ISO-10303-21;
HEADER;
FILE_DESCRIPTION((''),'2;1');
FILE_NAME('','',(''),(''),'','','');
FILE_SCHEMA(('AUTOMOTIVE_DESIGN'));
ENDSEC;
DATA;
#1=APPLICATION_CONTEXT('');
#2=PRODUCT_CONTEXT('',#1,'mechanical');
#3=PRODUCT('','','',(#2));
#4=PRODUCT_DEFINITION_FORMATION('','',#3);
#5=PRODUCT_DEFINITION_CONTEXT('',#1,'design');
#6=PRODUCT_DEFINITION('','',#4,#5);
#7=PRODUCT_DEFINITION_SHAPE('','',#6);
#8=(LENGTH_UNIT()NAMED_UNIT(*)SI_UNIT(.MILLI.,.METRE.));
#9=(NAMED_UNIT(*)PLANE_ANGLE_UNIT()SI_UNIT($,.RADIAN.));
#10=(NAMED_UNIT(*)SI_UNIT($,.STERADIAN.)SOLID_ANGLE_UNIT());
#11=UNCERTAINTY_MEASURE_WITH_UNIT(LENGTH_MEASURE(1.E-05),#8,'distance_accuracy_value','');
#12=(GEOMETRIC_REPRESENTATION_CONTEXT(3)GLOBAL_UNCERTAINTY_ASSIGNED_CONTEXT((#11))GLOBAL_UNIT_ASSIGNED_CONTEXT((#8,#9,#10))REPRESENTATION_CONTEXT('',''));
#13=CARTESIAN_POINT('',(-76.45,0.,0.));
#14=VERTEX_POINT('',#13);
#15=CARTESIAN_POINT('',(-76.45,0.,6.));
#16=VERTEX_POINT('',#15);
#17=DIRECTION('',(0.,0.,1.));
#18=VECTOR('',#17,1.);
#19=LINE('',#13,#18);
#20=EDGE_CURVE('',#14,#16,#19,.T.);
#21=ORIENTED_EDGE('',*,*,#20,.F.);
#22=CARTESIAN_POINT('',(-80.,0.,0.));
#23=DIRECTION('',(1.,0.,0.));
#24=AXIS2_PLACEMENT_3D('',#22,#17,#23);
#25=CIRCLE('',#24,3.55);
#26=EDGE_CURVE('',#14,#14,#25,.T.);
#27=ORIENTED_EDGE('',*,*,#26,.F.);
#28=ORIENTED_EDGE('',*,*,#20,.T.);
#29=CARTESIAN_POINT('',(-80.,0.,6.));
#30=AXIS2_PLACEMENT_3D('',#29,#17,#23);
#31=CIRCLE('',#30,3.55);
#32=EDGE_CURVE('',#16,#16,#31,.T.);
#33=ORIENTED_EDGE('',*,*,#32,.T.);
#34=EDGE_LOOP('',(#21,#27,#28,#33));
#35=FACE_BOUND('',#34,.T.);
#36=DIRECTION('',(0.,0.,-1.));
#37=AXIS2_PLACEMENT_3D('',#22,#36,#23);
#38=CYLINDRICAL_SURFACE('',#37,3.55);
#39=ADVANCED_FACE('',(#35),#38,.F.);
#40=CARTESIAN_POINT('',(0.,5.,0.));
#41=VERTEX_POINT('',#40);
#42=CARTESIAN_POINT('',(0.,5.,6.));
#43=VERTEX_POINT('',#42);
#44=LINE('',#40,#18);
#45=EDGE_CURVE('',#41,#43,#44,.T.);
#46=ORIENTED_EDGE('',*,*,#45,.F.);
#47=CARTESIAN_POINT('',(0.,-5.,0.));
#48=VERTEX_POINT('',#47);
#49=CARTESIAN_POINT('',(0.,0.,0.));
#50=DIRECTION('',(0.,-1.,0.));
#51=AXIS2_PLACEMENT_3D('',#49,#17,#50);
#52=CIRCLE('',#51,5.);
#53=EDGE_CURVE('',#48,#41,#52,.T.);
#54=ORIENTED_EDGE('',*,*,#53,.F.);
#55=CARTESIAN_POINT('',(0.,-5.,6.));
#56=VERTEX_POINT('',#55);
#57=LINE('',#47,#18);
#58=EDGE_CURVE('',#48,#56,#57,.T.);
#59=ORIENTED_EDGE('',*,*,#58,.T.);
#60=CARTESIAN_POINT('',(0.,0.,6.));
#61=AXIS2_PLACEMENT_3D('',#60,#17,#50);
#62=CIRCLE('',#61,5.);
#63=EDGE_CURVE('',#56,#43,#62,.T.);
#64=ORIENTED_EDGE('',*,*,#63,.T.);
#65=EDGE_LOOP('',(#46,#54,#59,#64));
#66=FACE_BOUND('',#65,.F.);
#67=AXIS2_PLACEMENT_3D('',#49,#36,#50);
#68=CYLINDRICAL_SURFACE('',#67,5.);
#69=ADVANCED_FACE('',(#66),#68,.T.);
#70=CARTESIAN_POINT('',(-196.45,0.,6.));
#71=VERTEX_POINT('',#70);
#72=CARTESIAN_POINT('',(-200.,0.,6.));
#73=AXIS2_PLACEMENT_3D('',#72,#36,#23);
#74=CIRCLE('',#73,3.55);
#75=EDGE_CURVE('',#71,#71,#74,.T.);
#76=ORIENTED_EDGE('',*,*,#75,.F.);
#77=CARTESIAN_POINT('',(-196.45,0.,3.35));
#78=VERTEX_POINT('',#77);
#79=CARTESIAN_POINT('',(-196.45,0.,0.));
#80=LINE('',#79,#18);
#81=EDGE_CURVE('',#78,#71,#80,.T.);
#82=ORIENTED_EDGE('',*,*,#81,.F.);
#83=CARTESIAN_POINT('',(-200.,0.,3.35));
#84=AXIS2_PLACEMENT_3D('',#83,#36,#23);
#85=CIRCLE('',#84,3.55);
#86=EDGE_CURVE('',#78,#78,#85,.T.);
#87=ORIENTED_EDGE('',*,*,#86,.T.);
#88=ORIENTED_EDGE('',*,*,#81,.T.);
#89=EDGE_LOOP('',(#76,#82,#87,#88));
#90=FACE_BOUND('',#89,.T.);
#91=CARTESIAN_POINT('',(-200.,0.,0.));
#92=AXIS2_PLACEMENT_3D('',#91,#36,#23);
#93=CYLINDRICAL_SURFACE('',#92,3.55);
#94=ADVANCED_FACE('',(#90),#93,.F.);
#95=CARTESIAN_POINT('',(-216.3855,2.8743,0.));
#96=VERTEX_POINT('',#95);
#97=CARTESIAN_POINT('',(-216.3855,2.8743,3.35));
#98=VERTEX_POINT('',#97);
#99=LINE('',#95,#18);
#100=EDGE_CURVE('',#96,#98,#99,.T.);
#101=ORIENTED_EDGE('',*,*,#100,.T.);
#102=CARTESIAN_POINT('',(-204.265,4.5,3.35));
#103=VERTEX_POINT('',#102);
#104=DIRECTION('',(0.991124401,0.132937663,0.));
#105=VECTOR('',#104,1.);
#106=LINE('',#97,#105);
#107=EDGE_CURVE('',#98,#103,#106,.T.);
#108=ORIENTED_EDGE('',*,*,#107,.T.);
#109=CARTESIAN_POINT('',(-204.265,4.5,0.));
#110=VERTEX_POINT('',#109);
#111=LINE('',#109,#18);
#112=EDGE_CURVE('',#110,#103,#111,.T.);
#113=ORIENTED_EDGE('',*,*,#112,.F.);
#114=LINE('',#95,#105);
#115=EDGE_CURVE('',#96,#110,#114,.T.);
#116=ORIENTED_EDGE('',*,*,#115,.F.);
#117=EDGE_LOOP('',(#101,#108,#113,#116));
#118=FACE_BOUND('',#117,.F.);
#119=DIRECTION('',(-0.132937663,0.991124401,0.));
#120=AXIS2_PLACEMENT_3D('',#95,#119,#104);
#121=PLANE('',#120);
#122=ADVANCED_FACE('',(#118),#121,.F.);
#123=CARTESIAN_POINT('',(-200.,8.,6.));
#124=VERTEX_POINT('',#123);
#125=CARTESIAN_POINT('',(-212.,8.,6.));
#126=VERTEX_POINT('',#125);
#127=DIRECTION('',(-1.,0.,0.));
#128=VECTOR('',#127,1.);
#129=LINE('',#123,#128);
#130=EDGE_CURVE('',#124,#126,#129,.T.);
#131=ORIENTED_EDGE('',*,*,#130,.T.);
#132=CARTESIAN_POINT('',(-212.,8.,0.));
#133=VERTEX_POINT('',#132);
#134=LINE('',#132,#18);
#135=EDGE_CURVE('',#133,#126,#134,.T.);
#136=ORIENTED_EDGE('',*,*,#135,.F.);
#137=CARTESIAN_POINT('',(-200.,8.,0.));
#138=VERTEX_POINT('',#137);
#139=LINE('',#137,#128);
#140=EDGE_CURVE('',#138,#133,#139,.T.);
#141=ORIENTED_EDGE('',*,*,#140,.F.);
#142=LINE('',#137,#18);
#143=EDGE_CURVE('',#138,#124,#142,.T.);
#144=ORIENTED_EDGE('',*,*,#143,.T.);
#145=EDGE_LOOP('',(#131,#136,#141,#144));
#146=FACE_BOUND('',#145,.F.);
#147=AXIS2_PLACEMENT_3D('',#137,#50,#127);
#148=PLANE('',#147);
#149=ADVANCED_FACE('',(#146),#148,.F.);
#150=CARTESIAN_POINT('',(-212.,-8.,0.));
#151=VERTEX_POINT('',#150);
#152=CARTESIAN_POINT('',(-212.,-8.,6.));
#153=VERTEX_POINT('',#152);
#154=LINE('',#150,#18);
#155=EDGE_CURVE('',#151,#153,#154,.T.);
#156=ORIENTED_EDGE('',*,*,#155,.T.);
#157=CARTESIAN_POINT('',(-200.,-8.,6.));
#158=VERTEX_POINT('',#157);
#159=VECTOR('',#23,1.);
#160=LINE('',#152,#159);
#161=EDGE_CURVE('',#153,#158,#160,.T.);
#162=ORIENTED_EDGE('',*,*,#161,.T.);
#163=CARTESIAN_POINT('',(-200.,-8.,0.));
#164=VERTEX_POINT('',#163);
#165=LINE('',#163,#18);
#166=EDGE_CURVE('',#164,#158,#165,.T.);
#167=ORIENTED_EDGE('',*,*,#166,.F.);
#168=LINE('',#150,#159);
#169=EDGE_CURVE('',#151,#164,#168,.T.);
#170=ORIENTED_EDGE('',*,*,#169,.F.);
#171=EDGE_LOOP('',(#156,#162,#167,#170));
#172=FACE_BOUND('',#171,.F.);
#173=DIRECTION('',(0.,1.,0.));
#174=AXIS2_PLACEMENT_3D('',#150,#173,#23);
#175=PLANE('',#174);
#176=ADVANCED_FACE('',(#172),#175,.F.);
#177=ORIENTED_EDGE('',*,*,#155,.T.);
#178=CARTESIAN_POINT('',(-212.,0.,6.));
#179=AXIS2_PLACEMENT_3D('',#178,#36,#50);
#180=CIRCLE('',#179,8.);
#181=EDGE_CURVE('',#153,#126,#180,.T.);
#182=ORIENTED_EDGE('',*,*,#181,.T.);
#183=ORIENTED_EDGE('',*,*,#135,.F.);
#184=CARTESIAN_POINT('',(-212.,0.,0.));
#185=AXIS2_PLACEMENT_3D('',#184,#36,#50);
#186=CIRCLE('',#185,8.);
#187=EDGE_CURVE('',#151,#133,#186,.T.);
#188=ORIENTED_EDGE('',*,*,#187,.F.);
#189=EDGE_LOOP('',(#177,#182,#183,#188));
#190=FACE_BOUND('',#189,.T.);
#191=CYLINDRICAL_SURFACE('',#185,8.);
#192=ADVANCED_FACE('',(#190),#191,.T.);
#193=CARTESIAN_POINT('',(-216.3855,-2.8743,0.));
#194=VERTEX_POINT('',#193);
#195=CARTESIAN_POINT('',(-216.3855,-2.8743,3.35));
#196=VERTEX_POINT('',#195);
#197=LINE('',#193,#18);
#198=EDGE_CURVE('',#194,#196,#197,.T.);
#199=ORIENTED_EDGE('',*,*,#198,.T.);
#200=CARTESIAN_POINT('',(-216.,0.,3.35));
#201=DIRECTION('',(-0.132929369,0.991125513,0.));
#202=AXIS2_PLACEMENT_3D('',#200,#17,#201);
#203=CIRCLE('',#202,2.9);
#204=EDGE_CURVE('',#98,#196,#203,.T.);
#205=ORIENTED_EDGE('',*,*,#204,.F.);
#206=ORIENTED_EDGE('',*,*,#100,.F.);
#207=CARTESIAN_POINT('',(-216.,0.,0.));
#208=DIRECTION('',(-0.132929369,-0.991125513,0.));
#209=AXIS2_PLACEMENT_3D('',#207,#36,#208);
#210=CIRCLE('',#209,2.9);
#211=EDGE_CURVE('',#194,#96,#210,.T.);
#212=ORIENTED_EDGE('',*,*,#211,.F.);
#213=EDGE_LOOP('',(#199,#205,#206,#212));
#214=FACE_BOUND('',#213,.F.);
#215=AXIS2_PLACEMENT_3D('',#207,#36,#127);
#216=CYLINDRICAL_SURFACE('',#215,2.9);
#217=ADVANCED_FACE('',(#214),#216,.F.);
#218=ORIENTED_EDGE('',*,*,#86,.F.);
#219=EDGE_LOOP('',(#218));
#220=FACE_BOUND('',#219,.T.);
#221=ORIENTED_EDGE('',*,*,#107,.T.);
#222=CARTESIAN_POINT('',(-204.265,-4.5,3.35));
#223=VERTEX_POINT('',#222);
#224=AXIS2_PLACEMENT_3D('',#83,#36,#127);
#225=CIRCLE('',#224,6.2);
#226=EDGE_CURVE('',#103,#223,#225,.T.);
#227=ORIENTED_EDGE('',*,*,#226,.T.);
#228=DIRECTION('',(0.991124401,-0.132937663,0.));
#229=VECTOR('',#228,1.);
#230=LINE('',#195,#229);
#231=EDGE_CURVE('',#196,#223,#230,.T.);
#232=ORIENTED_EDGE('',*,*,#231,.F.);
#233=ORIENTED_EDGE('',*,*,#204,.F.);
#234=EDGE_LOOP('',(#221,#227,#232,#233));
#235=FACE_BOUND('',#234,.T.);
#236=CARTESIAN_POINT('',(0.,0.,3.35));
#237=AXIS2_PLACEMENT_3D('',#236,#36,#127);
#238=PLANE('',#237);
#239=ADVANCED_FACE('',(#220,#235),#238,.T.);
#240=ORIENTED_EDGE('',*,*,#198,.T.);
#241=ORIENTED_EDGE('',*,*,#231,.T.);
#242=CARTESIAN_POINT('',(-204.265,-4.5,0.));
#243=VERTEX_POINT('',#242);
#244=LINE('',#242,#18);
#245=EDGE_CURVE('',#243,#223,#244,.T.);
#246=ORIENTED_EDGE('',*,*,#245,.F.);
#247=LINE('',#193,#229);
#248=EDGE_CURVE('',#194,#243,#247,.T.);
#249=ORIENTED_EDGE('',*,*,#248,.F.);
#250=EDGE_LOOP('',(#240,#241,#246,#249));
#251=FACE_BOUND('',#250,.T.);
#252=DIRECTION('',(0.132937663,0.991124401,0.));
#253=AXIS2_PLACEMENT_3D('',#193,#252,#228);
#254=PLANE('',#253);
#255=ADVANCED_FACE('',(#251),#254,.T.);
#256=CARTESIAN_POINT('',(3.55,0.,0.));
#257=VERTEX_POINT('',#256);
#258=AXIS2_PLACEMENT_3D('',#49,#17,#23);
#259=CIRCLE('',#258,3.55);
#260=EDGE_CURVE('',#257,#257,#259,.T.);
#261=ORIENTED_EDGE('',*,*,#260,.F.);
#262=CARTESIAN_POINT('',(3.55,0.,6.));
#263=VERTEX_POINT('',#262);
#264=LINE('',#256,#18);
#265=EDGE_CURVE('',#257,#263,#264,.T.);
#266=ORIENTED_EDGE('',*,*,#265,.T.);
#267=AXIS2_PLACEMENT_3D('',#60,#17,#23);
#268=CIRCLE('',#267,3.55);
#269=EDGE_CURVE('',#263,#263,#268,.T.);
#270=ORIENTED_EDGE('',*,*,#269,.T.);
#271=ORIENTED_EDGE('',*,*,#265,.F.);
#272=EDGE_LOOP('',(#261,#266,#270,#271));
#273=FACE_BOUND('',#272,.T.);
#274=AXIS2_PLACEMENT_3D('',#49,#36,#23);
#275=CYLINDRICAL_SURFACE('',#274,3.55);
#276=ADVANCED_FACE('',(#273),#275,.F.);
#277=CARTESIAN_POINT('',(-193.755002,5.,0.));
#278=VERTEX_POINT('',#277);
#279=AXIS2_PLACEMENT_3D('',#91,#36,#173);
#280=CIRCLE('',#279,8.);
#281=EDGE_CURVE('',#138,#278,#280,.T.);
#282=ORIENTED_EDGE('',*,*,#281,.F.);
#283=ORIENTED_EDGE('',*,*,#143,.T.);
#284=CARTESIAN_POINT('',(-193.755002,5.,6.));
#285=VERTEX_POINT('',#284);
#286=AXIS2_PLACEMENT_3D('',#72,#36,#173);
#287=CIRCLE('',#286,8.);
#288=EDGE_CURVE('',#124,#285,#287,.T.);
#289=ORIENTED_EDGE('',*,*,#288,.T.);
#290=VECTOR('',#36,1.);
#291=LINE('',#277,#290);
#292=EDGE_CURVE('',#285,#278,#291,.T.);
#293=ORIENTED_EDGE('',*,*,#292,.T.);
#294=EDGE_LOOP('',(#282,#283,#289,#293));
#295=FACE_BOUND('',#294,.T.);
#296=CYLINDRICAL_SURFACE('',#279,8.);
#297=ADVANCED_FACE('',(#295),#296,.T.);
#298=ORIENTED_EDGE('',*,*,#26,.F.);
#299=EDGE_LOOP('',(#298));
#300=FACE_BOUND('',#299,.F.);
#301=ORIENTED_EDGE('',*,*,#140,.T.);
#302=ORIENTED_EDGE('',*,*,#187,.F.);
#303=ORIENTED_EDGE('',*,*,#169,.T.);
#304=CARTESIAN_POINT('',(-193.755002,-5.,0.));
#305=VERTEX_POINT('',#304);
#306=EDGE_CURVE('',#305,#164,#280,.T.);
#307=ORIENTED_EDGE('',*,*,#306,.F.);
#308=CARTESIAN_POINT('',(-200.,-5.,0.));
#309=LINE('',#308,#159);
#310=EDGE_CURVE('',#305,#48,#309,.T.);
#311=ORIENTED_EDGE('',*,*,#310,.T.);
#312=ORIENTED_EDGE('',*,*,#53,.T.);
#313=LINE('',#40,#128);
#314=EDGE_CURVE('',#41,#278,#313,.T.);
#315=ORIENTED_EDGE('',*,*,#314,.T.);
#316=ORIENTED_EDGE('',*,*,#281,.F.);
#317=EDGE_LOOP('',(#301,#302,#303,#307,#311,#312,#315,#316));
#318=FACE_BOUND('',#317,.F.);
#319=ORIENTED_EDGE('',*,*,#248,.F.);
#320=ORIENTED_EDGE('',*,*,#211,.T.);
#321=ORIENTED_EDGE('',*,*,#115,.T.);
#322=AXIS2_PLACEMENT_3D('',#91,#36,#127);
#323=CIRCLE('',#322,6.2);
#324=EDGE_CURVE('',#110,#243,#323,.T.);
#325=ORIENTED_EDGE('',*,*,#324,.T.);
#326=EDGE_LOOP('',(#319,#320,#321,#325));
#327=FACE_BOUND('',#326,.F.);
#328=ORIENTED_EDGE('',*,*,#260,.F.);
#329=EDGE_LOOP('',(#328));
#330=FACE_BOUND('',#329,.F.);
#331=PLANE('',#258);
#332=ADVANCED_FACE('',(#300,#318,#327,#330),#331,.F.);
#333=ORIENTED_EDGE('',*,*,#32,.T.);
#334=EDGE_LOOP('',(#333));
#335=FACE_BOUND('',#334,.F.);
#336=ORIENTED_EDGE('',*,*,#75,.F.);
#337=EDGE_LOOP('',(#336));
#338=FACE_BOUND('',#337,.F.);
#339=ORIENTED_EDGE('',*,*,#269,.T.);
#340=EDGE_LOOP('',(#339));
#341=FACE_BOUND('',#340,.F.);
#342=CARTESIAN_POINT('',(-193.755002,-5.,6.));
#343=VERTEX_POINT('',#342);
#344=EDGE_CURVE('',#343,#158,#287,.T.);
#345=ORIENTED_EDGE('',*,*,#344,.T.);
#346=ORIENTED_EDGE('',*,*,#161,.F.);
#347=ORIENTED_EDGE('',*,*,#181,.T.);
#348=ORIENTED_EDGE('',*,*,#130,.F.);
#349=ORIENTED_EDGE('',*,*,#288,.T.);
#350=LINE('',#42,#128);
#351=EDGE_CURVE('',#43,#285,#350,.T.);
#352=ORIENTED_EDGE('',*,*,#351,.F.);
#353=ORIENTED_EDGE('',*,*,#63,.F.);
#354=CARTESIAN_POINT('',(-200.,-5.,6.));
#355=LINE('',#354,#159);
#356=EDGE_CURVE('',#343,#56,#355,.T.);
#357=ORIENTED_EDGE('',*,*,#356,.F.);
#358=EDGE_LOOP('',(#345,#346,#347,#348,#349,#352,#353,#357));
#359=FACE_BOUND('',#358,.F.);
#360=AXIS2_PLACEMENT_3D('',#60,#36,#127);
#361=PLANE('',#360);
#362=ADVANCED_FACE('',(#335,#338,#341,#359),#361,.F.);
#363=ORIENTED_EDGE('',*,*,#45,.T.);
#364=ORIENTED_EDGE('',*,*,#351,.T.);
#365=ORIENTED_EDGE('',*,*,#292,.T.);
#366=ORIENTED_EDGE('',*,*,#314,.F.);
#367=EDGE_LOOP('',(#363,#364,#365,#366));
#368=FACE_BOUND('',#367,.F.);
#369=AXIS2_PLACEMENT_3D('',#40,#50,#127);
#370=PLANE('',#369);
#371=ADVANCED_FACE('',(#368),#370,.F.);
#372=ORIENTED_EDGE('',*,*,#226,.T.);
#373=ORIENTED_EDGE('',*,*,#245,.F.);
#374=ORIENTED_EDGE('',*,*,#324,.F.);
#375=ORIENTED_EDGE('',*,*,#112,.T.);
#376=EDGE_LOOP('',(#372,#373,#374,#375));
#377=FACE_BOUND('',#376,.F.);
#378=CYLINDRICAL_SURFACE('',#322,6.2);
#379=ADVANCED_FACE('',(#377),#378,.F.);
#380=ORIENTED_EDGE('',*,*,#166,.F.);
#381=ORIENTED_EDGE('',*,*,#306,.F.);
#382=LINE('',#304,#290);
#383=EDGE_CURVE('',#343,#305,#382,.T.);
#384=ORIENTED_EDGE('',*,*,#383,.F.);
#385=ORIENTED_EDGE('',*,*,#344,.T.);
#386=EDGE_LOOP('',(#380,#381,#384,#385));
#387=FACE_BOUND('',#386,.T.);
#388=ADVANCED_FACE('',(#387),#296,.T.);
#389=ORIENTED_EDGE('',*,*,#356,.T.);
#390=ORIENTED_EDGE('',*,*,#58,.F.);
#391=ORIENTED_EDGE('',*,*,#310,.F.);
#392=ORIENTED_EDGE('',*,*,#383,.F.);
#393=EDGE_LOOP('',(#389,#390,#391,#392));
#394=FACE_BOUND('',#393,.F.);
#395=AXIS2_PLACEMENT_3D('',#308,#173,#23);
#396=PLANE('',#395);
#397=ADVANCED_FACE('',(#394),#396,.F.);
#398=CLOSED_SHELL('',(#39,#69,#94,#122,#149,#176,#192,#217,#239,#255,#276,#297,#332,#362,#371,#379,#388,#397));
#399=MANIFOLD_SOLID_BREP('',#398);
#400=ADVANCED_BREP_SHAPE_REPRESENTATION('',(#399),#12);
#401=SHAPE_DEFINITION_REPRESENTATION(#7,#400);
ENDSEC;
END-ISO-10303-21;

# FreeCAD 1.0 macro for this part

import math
import FreeCAD as App
import Part
import Sketcher

V = App.Vector

doc = App.newDocument("Part")
body = doc.addObject("PartDesign::Body", "Body")

sketch1 = doc.addObject("Sketcher::SketchObject", "Sketch")
body.addObject(sketch1)
sketch1.AttachmentSupport = (doc.XY_Plane, [""])
sketch1.MapMode = "FlatFace"
sketch1.addGeometry([
    Part.ArcOfCircle(Part.Circle(V(-200, 0, 0), V(0, 0, 1), 5), math.radians(90), math.radians(270)),
    Part.LineSegment(V(-200, -5, 0), V(0, -5, 0)),
    Part.ArcOfCircle(Part.Circle(V(0, 0, 0), V(0, 0, 1), 5), math.radians(-90), math.radians(90)),
    Part.LineSegment(V(0, 5, 0), V(-200, 5, 0)),
    Part.Circle(V(-80, 0, 0), V(0, 0, 1), 3.5),
    Part.Circle(V(0, 0, 0), V(0, 0, 1), 3.5),
], False)
sketch1.addConstraint([
    Sketcher.Constraint("Tangent", 0, 2, 1, 1),
    Sketcher.Constraint("Tangent", 1, 2, 2, 1),
    Sketcher.Constraint("Tangent", 2, 2, 3, 1),
    Sketcher.Constraint("Tangent", 3, 2, 0, 1),
    Sketcher.Constraint("Horizontal", 1),
    Sketcher.Constraint("Horizontal", 3),
    Sketcher.Constraint("Coincident", 2, 3, -1, 1),
    Sketcher.Constraint("Coincident", 5, 3, -1, 1),
    Sketcher.Constraint("Equal", 4, 5),
    Sketcher.Constraint("PointOnObject", 4, 3, -1),
    Sketcher.Constraint("Radius", 0, 5.0),
    Sketcher.Constraint("Diameter", 4, 7.1),
    Sketcher.Constraint("DistanceX", 1, 1, 1, 2, 200.0),
    Sketcher.Constraint("DistanceX", 4, 3, -1, 1, 80.0),
])
pad1 = doc.addObject("PartDesign::Pad", "Pad")
body.addObject(pad1)
pad1.Profile = sketch1
pad1.Length = 6

sketch2 = doc.addObject("Sketcher::SketchObject", "Sketch001")
body.addObject(sketch2)
sketch2.AttachmentSupport = (doc.XY_Plane, [""])
sketch2.MapMode = "FlatFace"
sketch2.addGeometry([
    Part.LineSegment(V(-212, 8, 0), V(-200, 8, 0)),
    Part.ArcOfCircle(Part.Circle(V(-200, 0, 0), V(0, 0, 1), 8), math.radians(-90), math.radians(90)),
    Part.LineSegment(V(-200, -8, 0), V(-212, -8, 0)),
    Part.ArcOfCircle(Part.Circle(V(-212, 0, 0), V(0, 0, 1), 8), math.radians(90), math.radians(270)),
], False)
sketch2.addConstraint([
    Sketcher.Constraint("Tangent", 0, 2, 1, 2),
    Sketcher.Constraint("Tangent", 1, 1, 2, 1),
    Sketcher.Constraint("Tangent", 2, 2, 3, 2),
    Sketcher.Constraint("Tangent", 3, 1, 0, 1),
    Sketcher.Constraint("Horizontal", 0),
    Sketcher.Constraint("Horizontal", 2),
    Sketcher.Constraint("PointOnObject", 1, 3, -1),
    Sketcher.Constraint("Radius", 1, 8.0),
    Sketcher.Constraint("DistanceX", 0, 1, 0, 2, 12.0),
    Sketcher.Constraint("DistanceX", 1, 3, -1, 1, 200.0),
])
pad2 = doc.addObject("PartDesign::Pad", "Pad001")
body.addObject(pad2)
pad2.Profile = sketch2
pad2.Length = 6

sketch3 = doc.addObject("Sketcher::SketchObject", "Sketch002")
body.addObject(sketch3)
sketch3.AttachmentSupport = (doc.XY_Plane, [""])
sketch3.MapMode = "FlatFace"
sketch3.addGeometry([
    Part.ArcOfCircle(Part.Circle(V(-200, 0, 0), V(0, 0, 1), 6.2), math.radians(-133), math.radians(133)),
    Part.LineSegment(V(-204.3, -4.5, 0), V(-216.4, -2.9, 0)),
    Part.ArcOfCircle(Part.Circle(V(-216, 0, 0), V(0, 0, 1), 2.9), math.radians(98), math.radians(262)),
    Part.LineSegment(V(-216.4, 2.9, 0), V(-204.3, 4.5, 0)),
], False)
sketch3.addConstraint([
    Sketcher.Constraint("Coincident", 0, 1, 1, 1),
    Sketcher.Constraint("Tangent", 1, 2, 2, 2),
    Sketcher.Constraint("Tangent", 2, 1, 3, 1),
    Sketcher.Constraint("Coincident", 3, 2, 0, 2),
    Sketcher.Constraint("Symmetric", 1, 2, 2, 1, -1),
    Sketcher.Constraint("PointOnObject", 0, 3, -1),
    Sketcher.Constraint("Radius", 0, 6.2),
    Sketcher.Constraint("Radius", 2, 2.9),
    Sketcher.Constraint("DistanceX", 2, 3, 0, 3, 16.0),
    Sketcher.Constraint("DistanceY", 0, 1, 3, 2, 9.0),
    Sketcher.Constraint("DistanceX", 0, 3, -1, 1, 200.0),
])
pocket1 = doc.addObject("PartDesign::Pocket", "Pocket")
body.addObject(pocket1)
pocket1.Profile = sketch3
pocket1.Length = 3.35
pocket1.Reversed = True

sketch4 = doc.addObject("Sketcher::SketchObject", "Sketch003")
body.addObject(sketch4)
sketch4.AttachmentSupport = (doc.XY_Plane, [""])
sketch4.MapMode = "FlatFace"
sketch4.addGeometry(Part.Circle(V(-200, 0, 0), V(0, 0, 1), 3.5), False)
sketch4.addConstraint([
    Sketcher.Constraint("PointOnObject", 0, 3, -1),
    Sketcher.Constraint("Diameter", 0, 7.1),
    Sketcher.Constraint("DistanceX", 0, 3, -1, 1, 200.0),
])
pocket2 = doc.addObject("PartDesign::Pocket", "Pocket001")
body.addObject(pocket2)
pocket2.Profile = sketch4
pocket2.Type = "ThroughAll"
pocket2.Reversed = True

doc.recompute()
